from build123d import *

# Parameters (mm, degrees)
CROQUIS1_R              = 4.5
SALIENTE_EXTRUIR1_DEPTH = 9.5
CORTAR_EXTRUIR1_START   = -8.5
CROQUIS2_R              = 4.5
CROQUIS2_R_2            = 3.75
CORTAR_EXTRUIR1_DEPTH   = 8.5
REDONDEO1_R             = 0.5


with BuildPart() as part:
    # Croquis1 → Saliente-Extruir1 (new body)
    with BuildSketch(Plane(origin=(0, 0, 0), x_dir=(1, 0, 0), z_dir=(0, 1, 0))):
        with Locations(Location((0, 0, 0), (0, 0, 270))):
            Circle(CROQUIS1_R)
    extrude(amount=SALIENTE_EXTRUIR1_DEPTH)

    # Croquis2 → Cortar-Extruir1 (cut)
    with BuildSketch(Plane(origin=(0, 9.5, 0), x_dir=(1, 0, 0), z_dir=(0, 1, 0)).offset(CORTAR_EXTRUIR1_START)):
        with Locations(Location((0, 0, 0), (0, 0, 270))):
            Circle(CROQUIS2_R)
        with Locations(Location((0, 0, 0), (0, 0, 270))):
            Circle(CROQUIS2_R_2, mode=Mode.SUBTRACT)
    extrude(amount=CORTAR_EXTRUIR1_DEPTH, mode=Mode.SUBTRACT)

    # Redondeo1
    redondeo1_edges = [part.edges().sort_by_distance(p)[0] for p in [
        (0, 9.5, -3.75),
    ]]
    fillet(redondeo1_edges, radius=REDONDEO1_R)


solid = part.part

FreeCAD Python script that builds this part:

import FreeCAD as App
import Part
import Sketcher
Q = App.Units.Quantity


def edges_at(feature, points):
    """Names of the edges that pass closest to the given points."""
    edges = feature.Shape.Edges
    near = lambda p: min(range(len(edges)), key=lambda i: edges[i].distToShape(Part.Vertex(*p))[0])
    return sorted({f"Edge{near(p) + 1}" for p in points})

doc = App.newDocument("Part")
params = doc.addObject("Spreadsheet::Sheet", "Params")
for row, (alias, value) in enumerate([
    ("sketch1_diameter", "9 mm"),
    ("pad1_length", "9.5 mm"),
    ("sketch2_diameter", "9 mm"),
    ("sketch2_diameter2", "7.5 mm"),
    ("pocket1_length", "8.5 mm"),
    ("fillet_radius", "0.5 mm"),
], start=1):
    params.set(f"A{row}", alias)
    params.set(f"B{row}", "=" + value)
    params.setAlias(f"B{row}", alias)

body = doc.addObject("PartDesign::Body", "Body")

sketch1 = body.newObject("Sketcher::SketchObject", "Sketch")
sketch1.AttachmentSupport = (doc.getObject("XZ_Plane"), [""])
sketch1.MapMode = "FlatFace"
sketch1.addGeometry(Part.Circle(App.Vector(0, 0, 0), App.Vector(0, 0, 1), 4.5), False)
sketch1.addConstraint(Sketcher.Constraint("Coincident", 0, 3, -1, 1))
sketch1.addConstraint(Sketcher.Constraint("Diameter", 0, Q("9 mm")))
sketch1.setExpression("Constraints[1]", "Params.sketch1_diameter")
pad1 = body.newObject("PartDesign::Pad", "Pad")
pad1.Profile = sketch1
pad1.setExpression("Length", "Params.pad1_length")
pad1.Reversed = True

sketch2 = body.newObject("Sketcher::SketchObject", "Sketch001")
sketch2.AttachmentSupport = (doc.getObject("XZ_Plane"), [""])
sketch2.MapMode = "FlatFace"
sketch2.AttachmentOffset = App.Placement(App.Vector(0, 0, -1), App.Rotation())
sketch2.addGeometry(Part.Circle(App.Vector(0, 0, 0), App.Vector(0, 0, 1), 4.5), False)
sketch2.addGeometry(Part.Circle(App.Vector(0, 0, 0), App.Vector(0, 0, 1), 3.75), False)
sketch2.addConstraint(Sketcher.Constraint("Coincident", 0, 3, -1, 1))
sketch2.addConstraint(Sketcher.Constraint("Coincident", 1, 3, -1, 1))
sketch2.addConstraint(Sketcher.Constraint("Diameter", 0, Q("9 mm")))
sketch2.addConstraint(Sketcher.Constraint("Diameter", 1, Q("7.5 mm")))
sketch2.setExpression("Constraints[2]", "Params.sketch2_diameter")
sketch2.setExpression("Constraints[3]", "Params.sketch2_diameter2")
pocket1 = body.newObject("PartDesign::Pocket", "Pocket")
pocket1.Profile = sketch2
pocket1.setExpression("Length", "Params.pocket1_length")
doc.recompute()

fillet = body.newObject("PartDesign::Fillet", "Fillet")
fillet.Base = (pocket1, edges_at(pocket1, [(0, 9.5, -3.75)]))
fillet.setExpression("Radius", "Params.fillet_radius")

doc.recompute()
